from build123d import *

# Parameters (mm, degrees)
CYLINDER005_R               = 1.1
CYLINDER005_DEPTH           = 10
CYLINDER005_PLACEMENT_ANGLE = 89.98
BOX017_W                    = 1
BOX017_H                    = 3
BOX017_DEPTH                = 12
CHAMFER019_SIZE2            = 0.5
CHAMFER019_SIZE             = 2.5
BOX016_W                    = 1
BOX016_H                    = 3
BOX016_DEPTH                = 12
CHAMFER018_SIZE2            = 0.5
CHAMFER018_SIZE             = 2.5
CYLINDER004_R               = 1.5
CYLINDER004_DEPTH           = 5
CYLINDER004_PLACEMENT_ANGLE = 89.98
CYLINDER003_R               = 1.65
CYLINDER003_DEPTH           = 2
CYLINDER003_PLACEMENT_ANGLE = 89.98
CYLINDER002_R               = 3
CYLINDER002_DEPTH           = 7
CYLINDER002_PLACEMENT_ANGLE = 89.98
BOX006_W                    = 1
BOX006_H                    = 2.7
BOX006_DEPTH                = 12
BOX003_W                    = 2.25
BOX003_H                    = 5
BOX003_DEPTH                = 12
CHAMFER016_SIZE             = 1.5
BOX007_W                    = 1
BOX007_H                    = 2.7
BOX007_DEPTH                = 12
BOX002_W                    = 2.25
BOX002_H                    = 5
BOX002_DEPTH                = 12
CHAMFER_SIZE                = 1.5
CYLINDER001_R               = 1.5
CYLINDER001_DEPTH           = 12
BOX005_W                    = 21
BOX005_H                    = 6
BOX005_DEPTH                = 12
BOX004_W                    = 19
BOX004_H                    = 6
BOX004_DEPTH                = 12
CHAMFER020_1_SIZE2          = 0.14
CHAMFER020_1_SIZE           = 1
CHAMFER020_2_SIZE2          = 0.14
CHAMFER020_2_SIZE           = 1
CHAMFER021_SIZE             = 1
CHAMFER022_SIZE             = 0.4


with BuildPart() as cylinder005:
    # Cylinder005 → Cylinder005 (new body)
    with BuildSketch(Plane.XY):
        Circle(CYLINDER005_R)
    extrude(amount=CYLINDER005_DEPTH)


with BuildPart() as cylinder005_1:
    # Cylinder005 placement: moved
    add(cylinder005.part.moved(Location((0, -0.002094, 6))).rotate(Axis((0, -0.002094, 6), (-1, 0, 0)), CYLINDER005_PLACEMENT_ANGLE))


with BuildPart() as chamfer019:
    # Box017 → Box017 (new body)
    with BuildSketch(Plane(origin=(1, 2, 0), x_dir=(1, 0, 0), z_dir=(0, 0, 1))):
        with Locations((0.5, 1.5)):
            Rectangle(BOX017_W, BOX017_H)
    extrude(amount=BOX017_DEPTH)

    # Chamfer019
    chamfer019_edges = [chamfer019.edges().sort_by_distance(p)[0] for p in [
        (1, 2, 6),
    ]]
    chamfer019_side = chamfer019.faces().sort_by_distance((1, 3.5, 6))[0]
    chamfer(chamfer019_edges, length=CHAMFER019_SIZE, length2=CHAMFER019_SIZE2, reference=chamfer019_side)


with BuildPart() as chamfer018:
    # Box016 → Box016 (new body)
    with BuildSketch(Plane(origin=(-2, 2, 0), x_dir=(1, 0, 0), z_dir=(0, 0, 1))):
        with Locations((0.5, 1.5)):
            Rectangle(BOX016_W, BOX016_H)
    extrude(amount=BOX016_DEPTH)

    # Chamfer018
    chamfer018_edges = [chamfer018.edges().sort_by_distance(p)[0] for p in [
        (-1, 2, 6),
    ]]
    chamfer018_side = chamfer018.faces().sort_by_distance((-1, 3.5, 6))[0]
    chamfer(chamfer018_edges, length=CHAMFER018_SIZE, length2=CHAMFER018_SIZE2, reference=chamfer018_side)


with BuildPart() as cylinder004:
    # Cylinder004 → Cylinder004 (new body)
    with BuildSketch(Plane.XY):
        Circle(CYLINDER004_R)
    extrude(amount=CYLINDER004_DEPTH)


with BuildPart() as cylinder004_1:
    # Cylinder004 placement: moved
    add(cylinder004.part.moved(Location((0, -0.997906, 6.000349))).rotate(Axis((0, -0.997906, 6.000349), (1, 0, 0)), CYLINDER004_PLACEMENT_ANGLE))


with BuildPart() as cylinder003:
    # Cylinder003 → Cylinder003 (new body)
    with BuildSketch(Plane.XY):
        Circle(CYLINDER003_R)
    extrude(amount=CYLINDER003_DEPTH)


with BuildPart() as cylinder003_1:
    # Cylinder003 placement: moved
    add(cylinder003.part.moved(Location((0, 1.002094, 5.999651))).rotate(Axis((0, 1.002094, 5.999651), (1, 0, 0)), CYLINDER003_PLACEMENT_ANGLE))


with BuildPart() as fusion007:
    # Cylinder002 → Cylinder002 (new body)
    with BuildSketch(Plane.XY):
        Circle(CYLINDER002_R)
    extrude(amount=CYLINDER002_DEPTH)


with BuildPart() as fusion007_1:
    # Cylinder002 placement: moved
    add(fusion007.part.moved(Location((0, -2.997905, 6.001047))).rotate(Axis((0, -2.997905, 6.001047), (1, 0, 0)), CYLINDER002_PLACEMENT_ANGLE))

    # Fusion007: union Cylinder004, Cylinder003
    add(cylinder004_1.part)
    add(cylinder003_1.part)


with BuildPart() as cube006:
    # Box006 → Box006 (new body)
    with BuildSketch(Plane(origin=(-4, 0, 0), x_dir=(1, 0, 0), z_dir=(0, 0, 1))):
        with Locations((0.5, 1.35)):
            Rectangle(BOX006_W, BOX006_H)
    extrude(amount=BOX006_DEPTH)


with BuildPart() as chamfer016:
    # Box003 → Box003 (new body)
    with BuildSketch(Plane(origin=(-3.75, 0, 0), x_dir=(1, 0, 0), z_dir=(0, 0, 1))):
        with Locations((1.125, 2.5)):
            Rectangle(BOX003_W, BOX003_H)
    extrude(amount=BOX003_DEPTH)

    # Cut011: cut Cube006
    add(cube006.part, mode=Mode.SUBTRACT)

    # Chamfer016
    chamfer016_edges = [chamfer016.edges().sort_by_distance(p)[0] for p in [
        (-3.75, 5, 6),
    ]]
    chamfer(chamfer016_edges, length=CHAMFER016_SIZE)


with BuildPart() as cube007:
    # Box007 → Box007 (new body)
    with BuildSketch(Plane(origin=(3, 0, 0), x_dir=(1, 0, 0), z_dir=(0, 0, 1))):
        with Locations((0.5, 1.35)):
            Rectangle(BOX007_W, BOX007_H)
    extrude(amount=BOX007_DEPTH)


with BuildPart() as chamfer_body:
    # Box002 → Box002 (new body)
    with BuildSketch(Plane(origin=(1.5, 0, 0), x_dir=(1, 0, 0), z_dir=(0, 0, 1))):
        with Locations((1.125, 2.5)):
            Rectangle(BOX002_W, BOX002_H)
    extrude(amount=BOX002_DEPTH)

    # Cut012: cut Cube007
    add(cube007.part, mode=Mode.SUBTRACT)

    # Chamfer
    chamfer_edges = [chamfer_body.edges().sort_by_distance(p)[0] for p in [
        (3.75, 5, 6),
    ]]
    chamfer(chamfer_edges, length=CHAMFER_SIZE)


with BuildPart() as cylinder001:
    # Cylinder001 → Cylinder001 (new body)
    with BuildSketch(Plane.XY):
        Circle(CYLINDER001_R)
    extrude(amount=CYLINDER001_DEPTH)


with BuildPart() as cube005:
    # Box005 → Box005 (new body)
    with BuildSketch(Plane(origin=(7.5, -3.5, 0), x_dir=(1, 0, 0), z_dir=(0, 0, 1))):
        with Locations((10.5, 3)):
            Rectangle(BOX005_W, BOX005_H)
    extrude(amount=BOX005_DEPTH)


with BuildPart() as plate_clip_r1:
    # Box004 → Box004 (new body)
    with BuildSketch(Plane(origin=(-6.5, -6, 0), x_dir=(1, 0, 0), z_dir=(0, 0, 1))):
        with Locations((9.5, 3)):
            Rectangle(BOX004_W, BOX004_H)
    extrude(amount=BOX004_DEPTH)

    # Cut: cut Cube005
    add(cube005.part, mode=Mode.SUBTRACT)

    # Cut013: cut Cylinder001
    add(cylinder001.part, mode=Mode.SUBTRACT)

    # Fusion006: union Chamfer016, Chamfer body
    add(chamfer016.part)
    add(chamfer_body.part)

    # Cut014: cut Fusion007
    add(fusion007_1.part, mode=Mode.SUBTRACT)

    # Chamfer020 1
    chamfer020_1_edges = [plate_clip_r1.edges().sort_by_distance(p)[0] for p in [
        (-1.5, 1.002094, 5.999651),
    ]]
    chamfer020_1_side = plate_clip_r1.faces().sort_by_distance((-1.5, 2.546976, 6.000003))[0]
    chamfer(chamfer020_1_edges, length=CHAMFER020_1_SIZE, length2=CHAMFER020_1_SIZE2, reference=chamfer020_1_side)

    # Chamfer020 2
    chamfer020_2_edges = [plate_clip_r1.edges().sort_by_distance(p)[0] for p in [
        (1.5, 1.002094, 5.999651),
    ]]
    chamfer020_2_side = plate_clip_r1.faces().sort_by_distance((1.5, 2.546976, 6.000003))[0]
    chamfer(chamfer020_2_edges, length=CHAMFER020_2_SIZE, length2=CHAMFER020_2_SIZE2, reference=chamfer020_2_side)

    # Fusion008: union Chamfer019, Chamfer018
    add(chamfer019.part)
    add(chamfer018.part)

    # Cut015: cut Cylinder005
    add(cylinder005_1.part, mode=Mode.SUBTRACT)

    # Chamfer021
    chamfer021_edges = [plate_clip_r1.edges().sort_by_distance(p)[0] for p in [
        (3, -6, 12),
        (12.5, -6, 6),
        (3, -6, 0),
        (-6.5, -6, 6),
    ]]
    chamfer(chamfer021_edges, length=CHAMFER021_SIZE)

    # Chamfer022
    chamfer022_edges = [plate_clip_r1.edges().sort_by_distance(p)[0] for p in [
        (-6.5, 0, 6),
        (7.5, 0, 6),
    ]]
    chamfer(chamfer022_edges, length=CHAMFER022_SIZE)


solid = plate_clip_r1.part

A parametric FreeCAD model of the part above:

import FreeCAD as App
import Part
import Sketcher
from FreeCAD import Vector


def edges_at(feature, points):
    """Names of the edges that pass closest to the given points."""
    edges = feature.Shape.Edges
    near = lambda p: min(range(len(edges)), key=lambda i: edges[i].distToShape(Part.Vertex(*p))[0])
    return sorted({f"Edge{near(p) + 1}" for p in points})


def add_polygon(sketch, points):
    """Adds a closed chain of lines whose ends are joined by coincident constraints."""
    first, n = sketch.GeometryCount, len(points)
    for a, b in zip(points, points[1:] + points[:1]):
        sketch.addGeometry(Part.LineSegment(App.Vector(*a, 0), App.Vector(*b, 0)), False)
    for i in range(n):
        sketch.addConstraint(Sketcher.Constraint("Coincident", first + i, 2, first + (i + 1) % n, 1))

doc = App.newDocument("Part")
body = doc.addObject("PartDesign::Body", "Body")

# Sketch on XY plane
sketch1 = body.newObject("Sketcher::SketchObject", "Sketch")
sketch1.AttachmentSupport = (doc.getObject("XY_Plane"), [""])
sketch1.MapMode = "FlatFace"
sketch1.addGeometry(Part.Circle(Vector(0, 0, 0), Vector(0, 0, 1), 1.1), False)
sketch1.addConstraint(Sketcher.Constraint("Coincident", 0, 3, -1, 1))
sketch1.addConstraint(Sketcher.Constraint("Diameter", 0, 2.2))
pad1 = body.newObject("PartDesign::Pad", "Pad")
pad1.Profile = sketch1
pad1.Length = 10
body2 = doc.addObject("PartDesign::Body", "Body001")
doc.recompute()

body.Placement = App.Placement(Vector(0, -0.002094, 6), App.Rotation(Vector(-1, 0, 0), 89.98))
boolean = body2.newObject("PartDesign::Boolean", "Boolean")
boolean.Type = "Fuse"
boolean.addObjects([body])
body3 = doc.addObject("PartDesign::Body", "Body002")

# Sketch on XY plane
sketch2 = body3.newObject("Sketcher::SketchObject", "Sketch001")
sketch2.AttachmentSupport = (doc.getObject("XY_Plane002"), [""])
sketch2.MapMode = "FlatFace"
add_polygon(sketch2, [(1, 5), (1, 2), (2, 2), (2, 5)])  # lines 0-3
sketch2.addConstraint(Sketcher.Constraint("Vertical", 0))
sketch2.addConstraint(Sketcher.Constraint("Horizontal", 1))
sketch2.addConstraint(Sketcher.Constraint("Vertical", 2))
sketch2.addConstraint(Sketcher.Constraint("Horizontal", 3))
sketch2.addConstraint(Sketcher.Constraint("DistanceX", 1, 1, 1, 2, 1.0))
sketch2.addConstraint(Sketcher.Constraint("DistanceY", 0, 2, 0, 1, 3.0))
sketch2.addConstraint(Sketcher.Constraint("DistanceX", -1, 1, 0, 2, 1.0))
sketch2.addConstraint(Sketcher.Constraint("DistanceY", -1, 1, 0, 2, 2.0))
pad2 = body3.newObject("PartDesign::Pad", "Pad001")
pad2.Profile = sketch2
pad2.Length = 12
doc.recompute()

chamfer = body3.newObject("PartDesign::Chamfer", "Chamfer")
chamfer.Base = (pad2, edges_at(pad2, [(1, 2, 6)]))
chamfer.ChamferType = "Two distances"
chamfer.Size = 2.5
chamfer.Size2 = 0.5
body4 = doc.addObject("PartDesign::Body", "Body003")

# Sketch on XY plane
sketch3 = body4.newObject("Sketcher::SketchObject", "Sketch002")
sketch3.AttachmentSupport = (doc.getObject("XY_Plane003"), [""])
sketch3.MapMode = "FlatFace"
add_polygon(sketch3, [(-2, 5), (-2, 2), (-1, 2), (-1, 5)])  # lines 0-3
sketch3.addConstraint(Sketcher.Constraint("Vertical", 0))
sketch3.addConstraint(Sketcher.Constraint("Horizontal", 1))
sketch3.addConstraint(Sketcher.Constraint("Vertical", 2))
sketch3.addConstraint(Sketcher.Constraint("Horizontal", 3))
sketch3.addConstraint(Sketcher.Constraint("DistanceX", 1, 1, 1, 2, 1.0))
sketch3.addConstraint(Sketcher.Constraint("DistanceY", 0, 2, 0, 1, 3.0))
sketch3.addConstraint(Sketcher.Constraint("DistanceX", 0, 2, -1, 1, 2.0))
sketch3.addConstraint(Sketcher.Constraint("DistanceY", -1, 1, 0, 2, 2.0))
pad3 = body4.newObject("PartDesign::Pad", "Pad002")
pad3.Profile = sketch3
pad3.Length = 12
doc.recompute()

chamfer2 = body4.newObject("PartDesign::Chamfer", "Chamfer001")
chamfer2.Base = (pad3, edges_at(pad3, [(-1, 2, 6)]))
chamfer2.ChamferType = "Two distances"
chamfer2.Size = 2.5
chamfer2.Size2 = 0.5
chamfer2.FlipDirection = True
body5 = doc.addObject("PartDesign::Body", "Body004")

# Sketch on XY plane
sketch4 = body5.newObject("Sketcher::SketchObject", "Sketch003")
sketch4.AttachmentSupport = (doc.getObject("XY_Plane004"), [""])
sketch4.MapMode = "FlatFace"
sketch4.addGeometry(Part.Circle(Vector(0, 0, 0), Vector(0, 0, 1), 1.5), False)
sketch4.addConstraint(Sketcher.Constraint("Coincident", 0, 3, -1, 1))
sketch4.addConstraint(Sketcher.Constraint("Diameter", 0, 3.0))
pad4 = body5.newObject("PartDesign::Pad", "Pad003")
pad4.Profile = sketch4
pad4.Length = 5
body6 = doc.addObject("PartDesign::Body", "Body005")
doc.recompute()

body5.Placement = App.Placement(Vector(0, -0.997906, 6.000349), App.Rotation(Vector(1, 0, 0), 89.98))
boolean2 = body6.newObject("PartDesign::Boolean", "Boolean001")
boolean2.Type = "Fuse"
boolean2.addObjects([body5])
body7 = doc.addObject("PartDesign::Body", "Body006")

# Sketch on XY plane
sketch5 = body7.newObject("Sketcher::SketchObject", "Sketch004")
sketch5.AttachmentSupport = (doc.getObject("XY_Plane006"), [""])
sketch5.MapMode = "FlatFace"
sketch5.addGeometry(Part.Circle(Vector(0, 0, 0), Vector(0, 0, 1), 1.6), False)
sketch5.addConstraint(Sketcher.Constraint("Coincident", 0, 3, -1, 1))
sketch5.addConstraint(Sketcher.Constraint("Diameter", 0, 3.3))
pad5 = body7.newObject("PartDesign::Pad", "Pad004")
pad5.Profile = sketch5
pad5.Length = 2
body8 = doc.addObject("PartDesign::Body", "Body007")
doc.recompute()

body7.Placement = App.Placement(Vector(0, 1.002094, 5.999651), App.Rotation(Vector(1, 0, 0), 89.98))
boolean3 = body8.newObject("PartDesign::Boolean", "Boolean002")
boolean3.Type = "Fuse"
boolean3.addObjects([body7])
body9 = doc.addObject("PartDesign::Body", "Body008")

# Sketch on XY plane
sketch6 = body9.newObject("Sketcher::SketchObject", "Sketch005")
sketch6.AttachmentSupport = (doc.getObject("XY_Plane008"), [""])
sketch6.MapMode = "FlatFace"
sketch6.addGeometry(Part.Circle(Vector(0, 0, 0), Vector(0, 0, 1), 3), False)
sketch6.addConstraint(Sketcher.Constraint("Coincident", 0, 3, -1, 1))
sketch6.addConstraint(Sketcher.Constraint("Diameter", 0, 6.0))
pad6 = body9.newObject("PartDesign::Pad", "Pad005")
pad6.Profile = sketch6
pad6.Length = 7
body10 = doc.addObject("PartDesign::Body", "Body009")
doc.recompute()

body9.Placement = App.Placement(Vector(0, -2.997905, 6.001047), App.Rotation(Vector(1, 0, 0), 89.98))
boolean4 = body10.newObject("PartDesign::Boolean", "Boolean003")
boolean4.Type = "Fuse"
boolean4.addObjects([body9])
doc.recompute()

boolean5 = body10.newObject("PartDesign::Boolean", "Boolean004")
boolean5.Type = "Fuse"
boolean5.addObjects([body6])
doc.recompute()

boolean6 = body10.newObject("PartDesign::Boolean", "Boolean005")
boolean6.Type = "Fuse"
boolean6.addObjects([body8])
body11 = doc.addObject("PartDesign::Body", "Body010")

# Sketch on XY plane
sketch7 = body11.newObject("Sketcher::SketchObject", "Sketch006")
sketch7.AttachmentSupport = (doc.getObject("XY_Plane010"), [""])
sketch7.MapMode = "FlatFace"
add_polygon(sketch7, [(-4, 2.7), (-4, 0), (-3, 0), (-3, 2.7)])  # lines 0-3
sketch7.addConstraint(Sketcher.Constraint("Vertical", 0))
sketch7.addConstraint(Sketcher.Constraint("Horizontal", 1))
sketch7.addConstraint(Sketcher.Constraint("Vertical", 2))
sketch7.addConstraint(Sketcher.Constraint("Horizontal", 3))
sketch7.addConstraint(Sketcher.Constraint("PointOnObject", 0, 2, -1))
sketch7.addConstraint(Sketcher.Constraint("DistanceX", 1, 1, 1, 2, 1.0))
sketch7.addConstraint(Sketcher.Constraint("DistanceY", 0, 2, 0, 1, 2.7))
sketch7.addConstraint(Sketcher.Constraint("DistanceX", 0, 2, -1, 1, 4.0))
pad7 = body11.newObject("PartDesign::Pad", "Pad006")
pad7.Profile = sketch7
pad7.Length = 12
body12 = doc.addObject("PartDesign::Body", "Body011")

# Sketch on XY plane
sketch8 = body12.newObject("Sketcher::SketchObject", "Sketch007")
sketch8.AttachmentSupport = (doc.getObject("XY_Plane011"), [""])
sketch8.MapMode = "FlatFace"
add_polygon(sketch8, [(-3.8, 5), (-3.8, 0), (-1.5, 0), (-1.5, 5)])  # lines 0-3
sketch8.addConstraint(Sketcher.Constraint("Vertical", 0))
sketch8.addConstraint(Sketcher.Constraint("Horizontal", 1))
sketch8.addConstraint(Sketcher.Constraint("Vertical", 2))
sketch8.addConstraint(Sketcher.Constraint("Horizontal", 3))
sketch8.addConstraint(Sketcher.Constraint("PointOnObject", 0, 2, -1))
sketch8.addConstraint(Sketcher.Constraint("DistanceY", 0, 2, 0, 1, 5.0))
sketch8.addConstraint(Sketcher.Constraint("DistanceX", 1, 1, 1, 2, 2.25))
sketch8.addConstraint(Sketcher.Constraint("DistanceX", 1, 2, -1, 1, 1.5))
pad8 = body12.newObject("PartDesign::Pad", "Pad007")
pad8.Profile = sketch8
pad8.Length = 12
doc.recompute()

boolean7 = body12.newObject("PartDesign::Boolean", "Boolean006")
boolean7.Type = "Cut"
boolean7.addObjects([body11])
doc.recompute()

chamfer3 = body12.newObject("PartDesign::Chamfer", "Chamfer002")
chamfer3.Base = (boolean7, edges_at(boolean7, [(-3.75, 5, 6)]))
chamfer3.Size = 1.5
body13 = doc.addObject("PartDesign::Body", "Body012")

# Sketch on XY plane
sketch9 = body13.newObject("Sketcher::SketchObject", "Sketch008")
sketch9.AttachmentSupport = (doc.getObject("XY_Plane012"), [""])
sketch9.MapMode = "FlatFace"
add_polygon(sketch9, [(3, 2.7), (3, 0), (4, 0), (4, 2.7)])  # lines 0-3
sketch9.addConstraint(Sketcher.Constraint("Vertical", 0))
sketch9.addConstraint(Sketcher.Constraint("Horizontal", 1))
sketch9.addConstraint(Sketcher.Constraint("Vertical", 2))
sketch9.addConstraint(Sketcher.Constraint("Horizontal", 3))
sketch9.addConstraint(Sketcher.Constraint("PointOnObject", 0, 2, -1))
sketch9.addConstraint(Sketcher.Constraint("DistanceX", 1, 1, 1, 2, 1.0))
sketch9.addConstraint(Sketcher.Constraint("DistanceY", 0, 2, 0, 1, 2.7))
sketch9.addConstraint(Sketcher.Constraint("DistanceX", -1, 1, 0, 2, 3.0))
pad9 = body13.newObject("PartDesign::Pad", "Pad008")
pad9.Profile = sketch9
pad9.Length = 12
body14 = doc.addObject("PartDesign::Body", "Body013")

# Sketch on XY plane
sketch10 = body14.newObject("Sketcher::SketchObject", "Sketch009")
sketch10.AttachmentSupport = (doc.getObject("XY_Plane013"), [""])
sketch10.MapMode = "FlatFace"
add_polygon(sketch10, [(1.5, 5), (1.5, 0), (3.8, 0), (3.8, 5)])  # lines 0-3
sketch10.addConstraint(Sketcher.Constraint("Vertical", 0))
sketch10.addConstraint(Sketcher.Constraint("Horizontal", 1))
sketch10.addConstraint(Sketcher.Constraint("Vertical", 2))
sketch10.addConstraint(Sketcher.Constraint("Horizontal", 3))
sketch10.addConstraint(Sketcher.Constraint("PointOnObject", 0, 2, -1))
sketch10.addConstraint(Sketcher.Constraint("DistanceY", 0, 2, 0, 1, 5.0))
sketch10.addConstraint(Sketcher.Constraint("DistanceX", 1, 1, 1, 2, 2.25))
sketch10.addConstraint(Sketcher.Constraint("DistanceX", -1, 1, 0, 2, 1.5))
pad10 = body14.newObject("PartDesign::Pad", "Pad009")
pad10.Profile = sketch10
pad10.Length = 12
doc.recompute()

boolean8 = body14.newObject("PartDesign::Boolean", "Boolean007")
boolean8.Type = "Cut"
boolean8.addObjects([body13])
doc.recompute()

chamfer4 = body14.newObject("PartDesign::Chamfer", "Chamfer003")
chamfer4.Base = (boolean8, edges_at(boolean8, [(3.75, 5, 6)]))
chamfer4.Size = 1.5
body15 = doc.addObject("PartDesign::Body", "Body014")

# Sketch on XY plane
sketch11 = body15.newObject("Sketcher::SketchObject", "Sketch010")
sketch11.AttachmentSupport = (doc.getObject("XY_Plane014"), [""])
sketch11.MapMode = "FlatFace"
sketch11.addGeometry(Part.Circle(Vector(0, 0, 0), Vector(0, 0, 1), 1.5), False)
sketch11.addConstraint(Sketcher.Constraint("Coincident", 0, 3, -1, 1))
sketch11.addConstraint(Sketcher.Constraint("Diameter", 0, 3.0))
pad11 = body15.newObject("PartDesign::Pad", "Pad010")
pad11.Profile = sketch11
pad11.Length = 12
body16 = doc.addObject("PartDesign::Body", "Body015")

# Sketch on XY plane
sketch12 = body16.newObject("Sketcher::SketchObject", "Sketch011")
sketch12.AttachmentSupport = (doc.getObject("XY_Plane015"), [""])
sketch12.MapMode = "FlatFace"
add_polygon(sketch12, [(8, 2), (8, -4), (28, -4), (28, 2)])  # lines 0-3
sketch12.addConstraint(Sketcher.Constraint("Vertical", 0))
sketch12.addConstraint(Sketcher.Constraint("Horizontal", 1))
sketch12.addConstraint(Sketcher.Constraint("Vertical", 2))
sketch12.addConstraint(Sketcher.Constraint("Horizontal", 3))
sketch12.addConstraint(Sketcher.Constraint("DistanceX", 1, 1, 1, 2, 21.0))
sketch12.addConstraint(Sketcher.Constraint("DistanceY", 0, 2, 0, 1, 6.0))
sketch12.addConstraint(Sketcher.Constraint("DistanceX", -1, 1, 0, 2, 7.5))
sketch12.addConstraint(Sketcher.Constraint("DistanceY", 0, 2, -1, 1, 3.5))
pad12 = body16.newObject("PartDesign::Pad", "Pad011")
pad12.Profile = sketch12
pad12.Length = 12
body17 = doc.addObject("PartDesign::Body", "Body016")

# Sketch on XY plane
sketch13 = body17.newObject("Sketcher::SketchObject", "Sketch012")
sketch13.AttachmentSupport = (doc.getObject("XY_Plane016"), [""])
sketch13.MapMode = "FlatFace"
add_polygon(sketch13, [(-6, 0), (-6, -6), (12, -6), (12, 0)])  # lines 0-3
sketch13.addConstraint(Sketcher.Constraint("Vertical", 0))
sketch13.addConstraint(Sketcher.Constraint("Horizontal", 1))
sketch13.addConstraint(Sketcher.Constraint("Vertical", 2))
sketch13.addConstraint(Sketcher.Constraint("Horizontal", 3))
sketch13.addConstraint(Sketcher.Constraint("PointOnObject", 2, 2, -1))
sketch13.addConstraint(Sketcher.Constraint("DistanceX", 1, 1, 1, 2, 19.0))
sketch13.addConstraint(Sketcher.Constraint("DistanceY", 0, 2, 0, 1, 6.0))
sketch13.addConstraint(Sketcher.Constraint("DistanceX", 0, 2, -1, 1, 6.5))
pad13 = body17.newObject("PartDesign::Pad", "Pad012")
pad13.Profile = sketch13
pad13.Length = 12
doc.recompute()

boolean9 = body17.newObject("PartDesign::Boolean", "Boolean008")
boolean9.Type = "Cut"
boolean9.addObjects([body16])
doc.recompute()

boolean10 = body17.newObject("PartDesign::Boolean", "Boolean009")
boolean10.Type = "Cut"
boolean10.addObjects([body15])
doc.recompute()

boolean11 = body17.newObject("PartDesign::Boolean", "Boolean010")
boolean11.Type = "Fuse"
boolean11.addObjects([body12])
doc.recompute()

boolean12 = body17.newObject("PartDesign::Boolean", "Boolean011")
boolean12.Type = "Fuse"
boolean12.addObjects([body14])
doc.recompute()

boolean13 = body17.newObject("PartDesign::Boolean", "Boolean012")
boolean13.Type = "Cut"
boolean13.addObjects([body10])
doc.recompute()

chamfer5 = body17.newObject("PartDesign::Chamfer", "Chamfer004")
chamfer5.Base = (boolean13, edges_at(boolean13, [(-1.5, 1.002, 6)]))
chamfer5.ChamferType = "Two distances"
chamfer5.Size = 1
chamfer5.Size2 = 0.14
doc.recompute()

chamfer6 = body17.newObject("PartDesign::Chamfer", "Chamfer005")
chamfer6.Base = (chamfer5, edges_at(chamfer5, [(1.5, 1.002, 6)]))
chamfer6.ChamferType = "Two distances"
chamfer6.Size = 1
chamfer6.Size2 = 0.14
doc.recompute()

boolean14 = body17.newObject("PartDesign::Boolean", "Boolean013")
boolean14.Type = "Fuse"
boolean14.addObjects([body3])
doc.recompute()

boolean15 = body17.newObject("PartDesign::Boolean", "Boolean014")
boolean15.Type = "Fuse"
boolean15.addObjects([body4])
doc.recompute()

boolean16 = body17.newObject("PartDesign::Boolean", "Boolean015")
boolean16.Type = "Cut"
boolean16.addObjects([body2])
doc.recompute()

chamfer7 = body17.newObject("PartDesign::Chamfer", "Chamfer006")
chamfer7.Base = (boolean16, edges_at(boolean16, [
    (3, -6, 12),
    (12.5, -6, 6),
    (3, -6, 0),
    (-6.5, -6, 6),
]))
chamfer7.Size = 1
doc.recompute()

chamfer8 = body17.newObject("PartDesign::Chamfer", "Chamfer007")
chamfer8.Base = (chamfer7, edges_at(chamfer7, [(-6.5, 0, 6), (7.5, 0, 6)]))
chamfer8.Size = 0.4

doc.recompute()
